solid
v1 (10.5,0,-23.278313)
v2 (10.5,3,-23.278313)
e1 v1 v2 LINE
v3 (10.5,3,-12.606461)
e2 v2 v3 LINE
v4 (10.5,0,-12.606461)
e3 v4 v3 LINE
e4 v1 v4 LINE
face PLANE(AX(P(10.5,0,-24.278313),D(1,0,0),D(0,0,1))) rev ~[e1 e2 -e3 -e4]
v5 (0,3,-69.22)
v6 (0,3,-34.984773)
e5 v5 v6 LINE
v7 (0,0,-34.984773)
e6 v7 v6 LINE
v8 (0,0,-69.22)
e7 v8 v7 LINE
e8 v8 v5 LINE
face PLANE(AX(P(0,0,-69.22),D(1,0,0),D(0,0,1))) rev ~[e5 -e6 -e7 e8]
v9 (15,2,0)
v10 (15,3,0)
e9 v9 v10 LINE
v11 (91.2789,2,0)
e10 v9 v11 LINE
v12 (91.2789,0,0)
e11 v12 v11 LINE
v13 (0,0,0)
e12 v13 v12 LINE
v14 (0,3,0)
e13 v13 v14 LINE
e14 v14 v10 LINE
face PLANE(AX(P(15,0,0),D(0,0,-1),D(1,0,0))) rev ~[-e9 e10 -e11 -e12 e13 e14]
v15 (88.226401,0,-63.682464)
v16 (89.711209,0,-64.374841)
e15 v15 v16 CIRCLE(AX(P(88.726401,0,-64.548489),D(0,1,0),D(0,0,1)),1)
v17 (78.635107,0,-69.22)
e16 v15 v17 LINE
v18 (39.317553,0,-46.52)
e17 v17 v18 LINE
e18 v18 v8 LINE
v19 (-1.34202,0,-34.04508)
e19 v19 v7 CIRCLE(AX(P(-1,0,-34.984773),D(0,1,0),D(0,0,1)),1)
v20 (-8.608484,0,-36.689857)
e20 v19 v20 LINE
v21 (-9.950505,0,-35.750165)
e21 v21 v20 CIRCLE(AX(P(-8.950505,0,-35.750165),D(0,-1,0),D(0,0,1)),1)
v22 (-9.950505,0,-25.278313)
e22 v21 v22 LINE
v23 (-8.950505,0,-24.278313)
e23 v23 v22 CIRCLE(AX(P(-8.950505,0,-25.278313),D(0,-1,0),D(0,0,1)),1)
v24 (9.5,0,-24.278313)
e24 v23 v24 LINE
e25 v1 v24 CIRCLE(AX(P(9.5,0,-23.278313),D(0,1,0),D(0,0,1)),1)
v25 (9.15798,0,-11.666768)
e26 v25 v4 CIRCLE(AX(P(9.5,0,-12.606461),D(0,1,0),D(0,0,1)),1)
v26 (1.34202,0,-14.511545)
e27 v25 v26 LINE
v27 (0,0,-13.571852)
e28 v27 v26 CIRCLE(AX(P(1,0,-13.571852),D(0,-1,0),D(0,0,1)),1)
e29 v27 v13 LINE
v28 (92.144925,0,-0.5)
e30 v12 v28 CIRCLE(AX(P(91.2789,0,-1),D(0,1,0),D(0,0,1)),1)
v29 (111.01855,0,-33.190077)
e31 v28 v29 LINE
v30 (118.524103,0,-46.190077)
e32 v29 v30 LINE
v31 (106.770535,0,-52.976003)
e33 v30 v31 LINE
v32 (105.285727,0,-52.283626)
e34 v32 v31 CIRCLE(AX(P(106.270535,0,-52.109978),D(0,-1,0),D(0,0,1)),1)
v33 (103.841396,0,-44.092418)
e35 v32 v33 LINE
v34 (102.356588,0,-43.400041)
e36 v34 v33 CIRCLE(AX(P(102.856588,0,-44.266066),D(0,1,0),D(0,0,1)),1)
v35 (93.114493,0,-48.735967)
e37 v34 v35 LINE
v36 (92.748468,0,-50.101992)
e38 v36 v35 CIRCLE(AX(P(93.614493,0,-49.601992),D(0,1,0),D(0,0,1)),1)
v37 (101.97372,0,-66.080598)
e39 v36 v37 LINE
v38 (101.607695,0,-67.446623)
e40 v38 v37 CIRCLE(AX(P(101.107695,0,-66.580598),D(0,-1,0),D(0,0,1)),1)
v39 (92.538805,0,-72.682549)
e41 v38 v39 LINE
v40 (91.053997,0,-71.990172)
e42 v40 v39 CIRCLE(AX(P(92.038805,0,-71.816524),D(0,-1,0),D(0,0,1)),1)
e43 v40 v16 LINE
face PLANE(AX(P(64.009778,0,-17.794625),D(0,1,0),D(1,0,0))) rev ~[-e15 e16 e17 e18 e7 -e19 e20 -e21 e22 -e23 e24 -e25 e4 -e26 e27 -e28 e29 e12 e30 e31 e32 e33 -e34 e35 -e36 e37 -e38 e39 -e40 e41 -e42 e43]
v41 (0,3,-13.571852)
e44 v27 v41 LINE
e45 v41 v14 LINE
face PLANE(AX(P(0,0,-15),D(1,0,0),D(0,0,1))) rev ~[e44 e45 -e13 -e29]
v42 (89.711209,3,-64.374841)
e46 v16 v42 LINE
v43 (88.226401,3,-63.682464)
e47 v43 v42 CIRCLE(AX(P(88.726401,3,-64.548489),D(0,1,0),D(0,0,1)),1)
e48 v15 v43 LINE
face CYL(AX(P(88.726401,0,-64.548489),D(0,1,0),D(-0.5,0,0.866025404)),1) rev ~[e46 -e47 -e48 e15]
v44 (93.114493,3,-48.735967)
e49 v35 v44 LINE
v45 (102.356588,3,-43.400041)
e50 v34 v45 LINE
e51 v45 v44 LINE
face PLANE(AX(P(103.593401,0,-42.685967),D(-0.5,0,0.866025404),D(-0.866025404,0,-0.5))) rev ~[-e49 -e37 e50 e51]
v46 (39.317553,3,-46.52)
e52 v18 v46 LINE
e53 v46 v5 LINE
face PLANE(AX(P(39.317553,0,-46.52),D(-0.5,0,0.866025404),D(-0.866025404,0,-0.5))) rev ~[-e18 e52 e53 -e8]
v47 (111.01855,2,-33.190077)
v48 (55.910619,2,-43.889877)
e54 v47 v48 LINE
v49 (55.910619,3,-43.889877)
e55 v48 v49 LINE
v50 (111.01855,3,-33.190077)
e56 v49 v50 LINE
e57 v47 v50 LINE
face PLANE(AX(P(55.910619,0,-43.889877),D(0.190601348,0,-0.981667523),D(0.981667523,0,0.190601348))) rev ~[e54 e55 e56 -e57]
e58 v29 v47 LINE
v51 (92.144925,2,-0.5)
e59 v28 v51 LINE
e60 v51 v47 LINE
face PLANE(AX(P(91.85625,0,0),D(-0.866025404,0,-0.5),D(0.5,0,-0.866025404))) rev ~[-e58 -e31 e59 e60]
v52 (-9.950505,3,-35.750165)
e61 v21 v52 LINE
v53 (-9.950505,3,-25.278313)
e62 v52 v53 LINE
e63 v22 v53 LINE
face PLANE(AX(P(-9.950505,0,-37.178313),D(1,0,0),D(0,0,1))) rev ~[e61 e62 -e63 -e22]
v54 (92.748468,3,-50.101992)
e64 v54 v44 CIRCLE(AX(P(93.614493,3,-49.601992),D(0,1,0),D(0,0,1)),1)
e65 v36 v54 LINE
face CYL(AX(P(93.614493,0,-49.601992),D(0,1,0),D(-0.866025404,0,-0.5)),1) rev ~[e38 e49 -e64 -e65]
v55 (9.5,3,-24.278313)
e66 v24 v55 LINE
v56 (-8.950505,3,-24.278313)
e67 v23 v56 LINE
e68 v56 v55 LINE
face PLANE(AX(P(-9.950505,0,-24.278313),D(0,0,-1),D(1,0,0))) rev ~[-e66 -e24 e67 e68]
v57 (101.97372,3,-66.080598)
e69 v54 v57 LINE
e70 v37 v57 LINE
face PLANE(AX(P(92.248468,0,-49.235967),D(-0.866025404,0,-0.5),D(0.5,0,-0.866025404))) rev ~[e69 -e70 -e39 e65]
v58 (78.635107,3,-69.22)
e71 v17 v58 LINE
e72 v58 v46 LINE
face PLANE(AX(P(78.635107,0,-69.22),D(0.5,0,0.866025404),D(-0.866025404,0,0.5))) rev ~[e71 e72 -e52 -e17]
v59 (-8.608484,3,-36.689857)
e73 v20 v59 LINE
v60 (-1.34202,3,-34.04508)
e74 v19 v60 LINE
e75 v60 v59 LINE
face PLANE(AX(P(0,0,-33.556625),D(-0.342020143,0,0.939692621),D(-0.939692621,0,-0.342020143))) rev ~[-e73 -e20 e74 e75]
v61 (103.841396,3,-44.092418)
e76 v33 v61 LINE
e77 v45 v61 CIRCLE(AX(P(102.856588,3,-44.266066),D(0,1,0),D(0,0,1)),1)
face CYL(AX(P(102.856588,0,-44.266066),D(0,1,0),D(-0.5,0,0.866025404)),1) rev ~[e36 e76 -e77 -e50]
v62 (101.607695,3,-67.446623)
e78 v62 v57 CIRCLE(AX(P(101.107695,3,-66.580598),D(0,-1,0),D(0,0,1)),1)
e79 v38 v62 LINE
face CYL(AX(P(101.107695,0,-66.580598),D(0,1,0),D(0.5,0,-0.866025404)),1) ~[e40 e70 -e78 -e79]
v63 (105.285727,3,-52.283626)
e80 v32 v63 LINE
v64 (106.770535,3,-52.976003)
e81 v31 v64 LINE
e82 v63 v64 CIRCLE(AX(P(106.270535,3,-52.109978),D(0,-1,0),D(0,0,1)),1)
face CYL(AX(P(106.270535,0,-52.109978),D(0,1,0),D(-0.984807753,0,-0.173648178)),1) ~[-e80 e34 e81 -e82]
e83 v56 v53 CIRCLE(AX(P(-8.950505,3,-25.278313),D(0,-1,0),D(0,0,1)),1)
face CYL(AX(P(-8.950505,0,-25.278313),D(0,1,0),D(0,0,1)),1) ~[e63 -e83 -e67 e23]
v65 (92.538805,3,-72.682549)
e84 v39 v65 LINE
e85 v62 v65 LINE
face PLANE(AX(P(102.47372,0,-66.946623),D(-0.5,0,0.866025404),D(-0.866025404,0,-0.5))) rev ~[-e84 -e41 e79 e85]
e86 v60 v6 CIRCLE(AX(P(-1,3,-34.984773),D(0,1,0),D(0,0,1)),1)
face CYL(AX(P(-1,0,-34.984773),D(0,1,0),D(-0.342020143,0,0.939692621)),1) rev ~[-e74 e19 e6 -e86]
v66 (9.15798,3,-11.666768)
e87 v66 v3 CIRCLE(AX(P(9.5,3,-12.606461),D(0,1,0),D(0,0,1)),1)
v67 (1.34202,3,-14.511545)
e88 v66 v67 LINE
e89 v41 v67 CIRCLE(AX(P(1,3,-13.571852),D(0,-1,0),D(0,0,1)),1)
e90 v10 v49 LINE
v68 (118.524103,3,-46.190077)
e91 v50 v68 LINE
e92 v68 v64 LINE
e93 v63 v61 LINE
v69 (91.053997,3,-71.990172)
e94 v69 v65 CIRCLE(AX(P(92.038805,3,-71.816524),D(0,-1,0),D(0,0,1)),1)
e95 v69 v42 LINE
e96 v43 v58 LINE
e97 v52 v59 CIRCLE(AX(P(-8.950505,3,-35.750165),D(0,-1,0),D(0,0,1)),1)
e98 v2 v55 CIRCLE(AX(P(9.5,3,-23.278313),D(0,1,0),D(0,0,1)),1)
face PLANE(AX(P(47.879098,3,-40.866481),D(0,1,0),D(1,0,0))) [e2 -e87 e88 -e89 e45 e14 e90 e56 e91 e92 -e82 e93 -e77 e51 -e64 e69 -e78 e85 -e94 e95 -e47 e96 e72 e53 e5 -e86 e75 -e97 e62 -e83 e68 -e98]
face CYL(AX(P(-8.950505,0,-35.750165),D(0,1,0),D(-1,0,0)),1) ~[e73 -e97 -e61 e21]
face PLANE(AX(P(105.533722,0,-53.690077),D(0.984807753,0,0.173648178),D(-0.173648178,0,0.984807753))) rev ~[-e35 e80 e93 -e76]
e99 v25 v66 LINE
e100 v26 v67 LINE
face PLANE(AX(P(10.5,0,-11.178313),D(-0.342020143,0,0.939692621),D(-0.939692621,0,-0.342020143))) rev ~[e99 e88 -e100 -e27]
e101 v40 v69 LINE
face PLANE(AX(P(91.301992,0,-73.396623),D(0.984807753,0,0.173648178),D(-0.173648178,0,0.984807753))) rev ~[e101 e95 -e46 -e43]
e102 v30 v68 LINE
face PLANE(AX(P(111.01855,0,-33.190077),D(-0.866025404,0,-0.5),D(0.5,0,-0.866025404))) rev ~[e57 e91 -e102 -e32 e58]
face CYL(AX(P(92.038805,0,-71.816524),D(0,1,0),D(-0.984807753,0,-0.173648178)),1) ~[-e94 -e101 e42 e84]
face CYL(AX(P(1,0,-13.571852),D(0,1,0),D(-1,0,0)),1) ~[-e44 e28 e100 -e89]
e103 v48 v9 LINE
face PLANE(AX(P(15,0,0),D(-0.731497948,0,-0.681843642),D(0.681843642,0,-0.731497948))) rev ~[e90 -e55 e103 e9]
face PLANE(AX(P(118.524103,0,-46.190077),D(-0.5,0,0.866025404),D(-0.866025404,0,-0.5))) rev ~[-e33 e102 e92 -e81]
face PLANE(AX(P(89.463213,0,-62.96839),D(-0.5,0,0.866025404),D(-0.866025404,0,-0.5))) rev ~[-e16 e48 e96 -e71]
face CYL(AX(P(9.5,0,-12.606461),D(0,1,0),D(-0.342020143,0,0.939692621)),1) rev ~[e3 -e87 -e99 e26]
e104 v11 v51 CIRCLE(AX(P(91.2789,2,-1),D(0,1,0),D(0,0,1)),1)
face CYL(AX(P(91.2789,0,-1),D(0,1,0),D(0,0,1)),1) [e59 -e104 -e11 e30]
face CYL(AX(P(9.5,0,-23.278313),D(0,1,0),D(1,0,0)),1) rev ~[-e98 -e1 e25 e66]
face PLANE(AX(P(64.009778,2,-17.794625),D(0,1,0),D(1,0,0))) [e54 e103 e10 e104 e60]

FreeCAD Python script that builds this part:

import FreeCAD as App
import Part
import Sketcher

V = App.Vector
Q = App.Units.Quantity


def edges_at(feature, points):
    """Names of the edges that pass closest to the given points."""
    edges = feature.Shape.Edges
    near = lambda p: min(range(len(edges)), key=lambda i: edges[i].distToShape(Part.Vertex(*p))[0])
    return sorted({f"Edge{near(p) + 1}" for p in points})

doc = App.newDocument("Part")
body = doc.addObject("PartDesign::Body", "Body")

# Sketch on XZ plane
sketch1 = body.newObject("Sketcher::SketchObject", "Sketch")
sketch1.AttachmentSupport = (doc.getObject("XZ_Plane"), [""])
sketch1.MapMode = "FlatFace"
sketch1.addGeometry(Part.LineSegment(V(119, -46, 0), V(106, -54, 0)), False)
sketch1.addGeometry(Part.LineSegment(V(106, -54, 0), V(104, -43, 0)), False)
sketch1.addGeometry(Part.LineSegment(V(104, -43, 0), V(92, -49, 0)), False)
sketch1.addGeometry(Part.LineSegment(V(92, -49, 0), V(102, -67, 0)), False)
sketch1.addGeometry(Part.LineSegment(V(102, -67, 0), V(91, -73, 0)), False)
sketch1.addGeometry(Part.LineSegment(V(91, -73, 0), V(89, -63, 0)), False)
sketch1.addGeometry(Part.LineSegment(V(89, -63, 0), V(79, -69, 0)), False)
sketch1.addGeometry(Part.LineSegment(V(79, -69, 0), V(39, -47, 0)), False)
sketch1.addGeometry(Part.LineSegment(V(39, -47, 0), V(0, -69, 0)), False)
sketch1.addGeometry(Part.LineSegment(V(0, -69, 0), V(0, -34, 0)), False)
sketch1.addGeometry(Part.LineSegment(V(0, -34, 0), V(-10, -37, 0)), False)
sketch1.addGeometry(Part.LineSegment(V(-10, -37, 0), V(-10, -24, 0)), False)
sketch1.addGeometry(Part.LineSegment(V(-10, -24, 0), V(10, -24, 0)), False)
sketch1.addGeometry(Part.LineSegment(V(10, -24, 0), V(10, -11, 0)), False)
sketch1.addGeometry(Part.LineSegment(V(10, -11, 0), V(0, -15, 0)), False)
sketch1.addGeometry(Part.LineSegment(V(0, -15, 0), V(0, 0, 0)), False)
sketch1.addGeometry(Part.LineSegment(V(0, 0, 0), V(15, 0, 0)), False)
sketch1.addGeometry(Part.LineSegment(V(15, 0, 0), V(56, -44, 0)), False)
sketch1.addGeometry(Part.LineSegment(V(56, -44, 0), V(111, -33, 0)), False)
sketch1.addGeometry(Part.LineSegment(V(111, -33, 0), V(119, -46, 0)), False)
sketch1.addConstraint(Sketcher.Constraint("Coincident", 0, 2, 1, 1))
sketch1.addConstraint(Sketcher.Constraint("Coincident", 1, 2, 2, 1))
sketch1.addConstraint(Sketcher.Constraint("Coincident", 2, 2, 3, 1))
sketch1.addConstraint(Sketcher.Constraint("Coincident", 3, 2, 4, 1))
sketch1.addConstraint(Sketcher.Constraint("Coincident", 4, 2, 5, 1))
sketch1.addConstraint(Sketcher.Constraint("Coincident", 5, 2, 6, 1))
sketch1.addConstraint(Sketcher.Constraint("Coincident", 6, 2, 7, 1))
sketch1.addConstraint(Sketcher.Constraint("Coincident", 7, 2, 8, 1))
sketch1.addConstraint(Sketcher.Constraint("Coincident", 8, 2, 9, 1))
sketch1.addConstraint(Sketcher.Constraint("Coincident", 9, 2, 10, 1))
sketch1.addConstraint(Sketcher.Constraint("Coincident", 10, 2, 11, 1))
sketch1.addConstraint(Sketcher.Constraint("Coincident", 11, 2, 12, 1))
sketch1.addConstraint(Sketcher.Constraint("Coincident", 12, 2, 13, 1))
sketch1.addConstraint(Sketcher.Constraint("Coincident", 13, 2, 14, 1))
sketch1.addConstraint(Sketcher.Constraint("Coincident", 14, 2, 15, 1))
sketch1.addConstraint(Sketcher.Constraint("Coincident", 15, 2, 16, 1))
sketch1.addConstraint(Sketcher.Constraint("Coincident", 16, 2, 17, 1))
sketch1.addConstraint(Sketcher.Constraint("Coincident", 17, 2, 18, 1))
sketch1.addConstraint(Sketcher.Constraint("Coincident", 18, 2, 19, 1))
sketch1.addConstraint(Sketcher.Constraint("Coincident", 19, 2, 0, 1))
sketch1.addConstraint(Sketcher.Constraint("Vertical", 9))
sketch1.addConstraint(Sketcher.Constraint("Vertical", 11))
sketch1.addConstraint(Sketcher.Constraint("Horizontal", 12))
sketch1.addConstraint(Sketcher.Constraint("Vertical", 13))
sketch1.addConstraint(Sketcher.Constraint("Vertical", 15))
sketch1.addConstraint(Sketcher.Constraint("Horizontal", 16))
sketch1.addConstraint(Sketcher.Constraint("Coincident", 15, 2, -1, 1))
sketch1.addConstraint(Sketcher.Constraint("PointOnObject", 8, 2, -2))
sketch1.addConstraint(Sketcher.Constraint("Parallel", 0, 2))
sketch1.addConstraint(Sketcher.Constraint("Perpendicular", 2, 3))
sketch1.addConstraint(Sketcher.Constraint("Perpendicular", 3, 4))
sketch1.addConstraint(Sketcher.Constraint("Parallel", 1, 5))
sketch1.addConstraint(Sketcher.Constraint("Parallel", 4, 6))
sketch1.addConstraint(Sketcher.Constraint("Parallel", 6, 8))
sketch1.addConstraint(Sketcher.Constraint("Parallel", 10, 14))
sketch1.addConstraint(Sketcher.Constraint("Perpendicular", 8, 19))
sketch1.addConstraint(Sketcher.Constraint("Horizontal", 6, 2, 8, 2))
sketch1.addConstraint(Sketcher.Constraint("Equal", 16, 15))
sketch1.addConstraint(Sketcher.Constraint("Equal", 7, 8))
sketch1.addConstraint(Sketcher.Constraint("Equal", 5, 10))
sketch1.addConstraint(Sketcher.Constraint("Equal", 1, 14))
sketch1.addConstraint(Sketcher.Constraint("DistanceX", 16, 1, 16, 2, Q("15 mm")))
sketch1.addConstraint(Sketcher.Constraint("Angle", 0, Q("-150 deg")))
sketch1.addConstraint(Sketcher.Constraint("Angle", 1, Q("100 deg")))
sketch1.addConstraint(Sketcher.Constraint("Angle", 10, Q("-160 deg")))
sketch1.addConstraint(Sketcher.Constraint("Distance", 0, Q("15 mm")))
sketch1.addConstraint(Sketcher.Constraint("Distance", 17, Q("60 mm")))
sketch1.addConstraint(Sketcher.Constraint("DistanceY", 11, 1, 11, 2, Q("12.9 mm")))
sketch1.addConstraint(Sketcher.Constraint("DistanceY", 13, 1, 13, 2, Q("13.1 mm")))
sketch1.addConstraint(Sketcher.Constraint("DistanceY", 19, 2, 18, 2, Q("13 mm")))
sketch1.addConstraint(Sketcher.Constraint("Distance", 2, Q("13.1 mm")))
sketch1.addConstraint(Sketcher.Constraint("Distance", 4, Q("12.9 mm")))
sketch1.addConstraint(Sketcher.Constraint("Distance", 7, Q("45.4 mm")))
sketch1.addConstraint(Sketcher.Constraint("DistanceX", -1, 1, 12, 2, Q("10.5 mm")))
sketch1.addConstraint(Sketcher.Constraint("DistanceY", 6, 2, -1, 1, Q("69.22 mm")))
sketch1.addConstraint(Sketcher.Constraint("DistanceX", -1, 1, 1, 2, Q("103.593401 mm")))
sketch1.addConstraint(Sketcher.Constraint("Distance", 6, Q("12.503221 mm")))
sketch1.addConstraint(Sketcher.Constraint("DistanceX", 12, 1, 12, 2, Q("20.450505 mm")))
sketch1.addConstraint(Sketcher.Constraint("DistanceX", -1, 1, 17, 2, Q("55.910619 mm")))
pad1 = body.newObject("PartDesign::Pad", "Pad")
pad1.Profile = sketch1
pad1.Length = 3
pad1.Reversed = True

# Sketch on XZ plane
sketch2 = body.newObject("Sketcher::SketchObject", "Sketch001")
sketch2.AttachmentSupport = (doc.getObject("XZ_Plane"), [""])
sketch2.MapMode = "FlatFace"
sketch2.addGeometry(Part.LineSegment(V(92, 0, 0), V(111, -33, 0)), False)
sketch2.addGeometry(Part.LineSegment(V(111, -33, 0), V(56, -44, 0)), False)
sketch2.addGeometry(Part.LineSegment(V(56, -44, 0), V(15, 0, 0)), False)
sketch2.addGeometry(Part.LineSegment(V(15, 0, 0), V(92, 0, 0)), False)
sketch2.addConstraint(Sketcher.Constraint("Coincident", 0, 2, 1, 1))
sketch2.addConstraint(Sketcher.Constraint("Coincident", 1, 2, 2, 1))
sketch2.addConstraint(Sketcher.Constraint("Coincident", 2, 2, 3, 1))
sketch2.addConstraint(Sketcher.Constraint("Coincident", 3, 2, 0, 1))
sketch2.addConstraint(Sketcher.Constraint("Horizontal", 3))
sketch2.addConstraint(Sketcher.Constraint("PointOnObject", 2, 2, -1))
sketch2.addConstraint(Sketcher.Constraint("Angle", 0, Q("-60 deg")))
sketch2.addConstraint(Sketcher.Constraint("Distance", 2, Q("60 mm")))
sketch2.addConstraint(Sketcher.Constraint("DistanceX", -1, 1, 2, 2, Q("15 mm")))
sketch2.addConstraint(Sketcher.Constraint("Distance", 0, Q("38.3246 mm")))
sketch2.addConstraint(Sketcher.Constraint("DistanceX", 3, 1, 3, 2, Q("76.85625 mm")))
sketch2.addConstraint(Sketcher.Constraint("DistanceY", 1, 2, 0, 2, Q("10.6998 mm")))
pad2 = body.newObject("PartDesign::Pad", "Pad001")
pad2.Profile = sketch2
pad2.Length = 2
pad2.Reversed = True
doc.recompute()

fillet = body.newObject("PartDesign::Fillet", "Fillet")
fillet.Base = (pad2, edges_at(pad2, [
    (102.474, 1.5, -66.947),
    (92.248, 1.5, -49.236),
    (103.593, 1.5, -42.686),
    (105.534, 1.5, -53.69),
    (0, 1.5, -15),
    (10.5, 1.5, -11.178),
    (10.5, 1.5, -24.278),
    (-9.951, 1.5, -24.278),
    (-9.951, 1.5, -37.178),
    (0, 1.5, -33.557),
    (89.463, 1.5, -62.968),
    (91.302, 1.5, -73.397),
]))
fillet.Radius = 1
doc.recompute()

fillet2 = body.newObject("PartDesign::Fillet", "Fillet001")
fillet2.Base = (fillet, edges_at(fillet, [(91.856, 1, 0)]))
fillet2.Radius = 1

doc.recompute()
